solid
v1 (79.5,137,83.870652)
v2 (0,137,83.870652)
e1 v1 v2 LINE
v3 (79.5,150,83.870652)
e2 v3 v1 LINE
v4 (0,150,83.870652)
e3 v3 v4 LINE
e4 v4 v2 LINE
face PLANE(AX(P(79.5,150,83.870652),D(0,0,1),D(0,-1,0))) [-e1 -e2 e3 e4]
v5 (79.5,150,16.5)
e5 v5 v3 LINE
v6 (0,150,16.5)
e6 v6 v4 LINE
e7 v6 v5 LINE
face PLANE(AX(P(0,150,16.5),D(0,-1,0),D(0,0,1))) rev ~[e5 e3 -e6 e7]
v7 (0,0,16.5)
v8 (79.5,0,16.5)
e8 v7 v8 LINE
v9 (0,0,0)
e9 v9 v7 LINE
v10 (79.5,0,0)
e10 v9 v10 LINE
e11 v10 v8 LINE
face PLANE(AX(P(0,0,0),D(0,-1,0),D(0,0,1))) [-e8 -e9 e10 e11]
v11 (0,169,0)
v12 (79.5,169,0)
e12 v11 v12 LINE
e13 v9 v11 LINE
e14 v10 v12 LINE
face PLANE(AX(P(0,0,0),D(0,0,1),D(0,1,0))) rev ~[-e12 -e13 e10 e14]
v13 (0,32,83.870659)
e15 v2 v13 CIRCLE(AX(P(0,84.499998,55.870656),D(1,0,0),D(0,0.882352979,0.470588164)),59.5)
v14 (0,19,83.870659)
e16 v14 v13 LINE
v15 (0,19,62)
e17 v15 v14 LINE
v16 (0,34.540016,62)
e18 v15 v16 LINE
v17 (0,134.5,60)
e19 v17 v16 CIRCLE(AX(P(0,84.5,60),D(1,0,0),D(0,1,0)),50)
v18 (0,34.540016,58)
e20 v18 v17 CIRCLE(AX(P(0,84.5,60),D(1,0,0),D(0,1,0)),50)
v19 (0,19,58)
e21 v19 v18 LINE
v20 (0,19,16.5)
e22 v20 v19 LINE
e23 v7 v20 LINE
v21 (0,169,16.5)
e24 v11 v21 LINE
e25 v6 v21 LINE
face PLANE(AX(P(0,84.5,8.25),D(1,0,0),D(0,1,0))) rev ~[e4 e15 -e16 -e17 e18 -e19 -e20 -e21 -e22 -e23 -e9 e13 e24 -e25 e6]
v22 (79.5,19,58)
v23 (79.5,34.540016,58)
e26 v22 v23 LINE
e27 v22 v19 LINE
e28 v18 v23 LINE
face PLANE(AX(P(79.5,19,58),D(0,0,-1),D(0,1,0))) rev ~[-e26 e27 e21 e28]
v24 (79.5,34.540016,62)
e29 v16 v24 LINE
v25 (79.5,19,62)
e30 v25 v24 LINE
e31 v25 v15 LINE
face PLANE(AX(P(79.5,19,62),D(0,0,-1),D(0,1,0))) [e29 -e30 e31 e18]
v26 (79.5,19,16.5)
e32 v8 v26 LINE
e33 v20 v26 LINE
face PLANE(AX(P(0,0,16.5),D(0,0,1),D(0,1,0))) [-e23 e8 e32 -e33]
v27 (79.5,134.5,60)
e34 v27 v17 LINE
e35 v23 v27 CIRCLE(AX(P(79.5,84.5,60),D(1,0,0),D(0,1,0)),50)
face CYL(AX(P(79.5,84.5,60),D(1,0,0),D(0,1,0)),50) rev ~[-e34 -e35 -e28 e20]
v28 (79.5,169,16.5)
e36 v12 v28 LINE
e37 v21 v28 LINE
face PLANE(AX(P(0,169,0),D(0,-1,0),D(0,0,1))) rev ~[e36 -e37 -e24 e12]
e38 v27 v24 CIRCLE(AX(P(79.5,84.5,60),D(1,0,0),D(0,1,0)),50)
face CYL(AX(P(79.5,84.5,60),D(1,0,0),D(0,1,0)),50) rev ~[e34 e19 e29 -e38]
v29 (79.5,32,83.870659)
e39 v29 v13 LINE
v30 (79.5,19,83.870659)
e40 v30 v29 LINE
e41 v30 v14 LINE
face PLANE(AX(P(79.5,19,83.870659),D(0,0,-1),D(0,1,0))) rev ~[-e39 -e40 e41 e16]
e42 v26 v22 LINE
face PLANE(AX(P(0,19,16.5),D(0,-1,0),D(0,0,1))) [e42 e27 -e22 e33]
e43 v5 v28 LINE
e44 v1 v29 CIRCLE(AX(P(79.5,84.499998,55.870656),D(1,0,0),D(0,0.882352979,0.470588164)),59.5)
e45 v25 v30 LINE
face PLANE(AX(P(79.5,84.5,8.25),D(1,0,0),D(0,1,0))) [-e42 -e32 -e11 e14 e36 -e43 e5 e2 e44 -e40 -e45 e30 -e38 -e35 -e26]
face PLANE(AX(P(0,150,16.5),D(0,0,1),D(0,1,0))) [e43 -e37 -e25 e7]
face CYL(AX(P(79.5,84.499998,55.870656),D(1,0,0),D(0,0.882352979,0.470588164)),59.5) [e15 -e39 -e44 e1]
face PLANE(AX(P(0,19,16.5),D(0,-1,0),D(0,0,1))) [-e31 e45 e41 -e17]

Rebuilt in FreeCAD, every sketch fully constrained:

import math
import FreeCAD as App
import Part
import Sketcher
Q = App.Units.Quantity


def add_polygon(sketch, points):
    """Adds a closed chain of lines whose ends are joined by coincident constraints."""
    first, n = sketch.GeometryCount, len(points)
    for a, b in zip(points, points[1:] + points[:1]):
        sketch.addGeometry(Part.LineSegment(App.Vector(*a, 0), App.Vector(*b, 0)), False)
    for i in range(n):
        sketch.addConstraint(Sketcher.Constraint("Coincident", first + i, 2, first + (i + 1) % n, 1))

doc = App.newDocument("Part")
body = doc.addObject("PartDesign::Body", "Body")

# Sketch on YZ plane
sketch1 = body.newObject("Sketcher::SketchObject", "Sketch")
sketch1.AttachmentSupport = (doc.getObject("YZ_Plane"), [""])
sketch1.MapMode = "FlatFace"
add_polygon(sketch1, [(0, 16), (0, 0), (169, 0), (169, 16), (150, 16), (150, 166), (19, 166), (19, 16)])  # lines 0-7
sketch1.addConstraint(Sketcher.Constraint("Vertical", 0))
sketch1.addConstraint(Sketcher.Constraint("Horizontal", 1))
sketch1.addConstraint(Sketcher.Constraint("Vertical", 2))
sketch1.addConstraint(Sketcher.Constraint("Horizontal", 3))
sketch1.addConstraint(Sketcher.Constraint("Vertical", 4))
sketch1.addConstraint(Sketcher.Constraint("Horizontal", 5))
sketch1.addConstraint(Sketcher.Constraint("Vertical", 6))
sketch1.addConstraint(Sketcher.Constraint("Horizontal", 7))
sketch1.addConstraint(Sketcher.Constraint("Coincident", 0, 2, -1, 1))
sketch1.addConstraint(Sketcher.Constraint("Horizontal", 3, 2, 6, 2))
sketch1.addConstraint(Sketcher.Constraint("Equal", 3, 7))
sketch1.addConstraint(Sketcher.Constraint("DistanceX", 1, 1, 1, 2, Q("169 mm")))
sketch1.addConstraint(Sketcher.Constraint("DistanceX", 3, 2, 3, 1, Q("19 mm")))
sketch1.addConstraint(Sketcher.Constraint("DistanceY", 4, 1, 4, 2, Q("150 mm")))
sketch1.addConstraint(Sketcher.Constraint("DistanceY", 0, 2, 0, 1, Q("16.5 mm")))
pad1 = body.newObject("PartDesign::Pad", "Pad")
pad1.Profile = sketch1
pad1.Length = 79.5

# Sketch on YZ plane
sketch2 = body.newObject("Sketcher::SketchObject", "Sketch001")
sketch2.AttachmentSupport = (doc.getObject("YZ_Plane"), [""])
sketch2.MapMode = "FlatFace"
sketch2.AttachmentOffset = App.Placement(App.Vector(0, 0, 79.5), App.Rotation())
sketch2.addGeometry(Part.Circle(App.Vector(84, 60, 0), App.Vector(0, 0, 1), 50), False)
sketch2.addConstraint(Sketcher.Constraint("Diameter", 0, Q("100 mm")))
sketch2.addConstraint(Sketcher.Constraint("DistanceY", -1, 1, 0, 3, Q("60 mm")))
sketch2.addConstraint(Sketcher.Constraint("DistanceX", -1, 1, 0, 3, Q("84.5 mm")))
pocket1 = body.newObject("PartDesign::Pocket", "Pocket")
pocket1.Profile = sketch2
pocket1.Type = "ThroughAll"

# Sketch on YZ plane
sketch3 = body.newObject("Sketcher::SketchObject", "Sketch002")
sketch3.AttachmentSupport = (doc.getObject("YZ_Plane"), [""])
sketch3.MapMode = "FlatFace"
sketch3.AttachmentOffset = App.Placement(App.Vector(0, 0, 79.5), App.Rotation())
sketch3.addGeometry(Part.LineSegment(App.Vector(19, 84, 0), App.Vector(32, 84, 0)), False)
sketch3.addGeometry(Part.ArcOfCircle(Part.Circle(App.Vector(84, 56, 0), App.Vector(0, 0, 1), 59), math.radians(28), math.radians(152)), False)
sketch3.addGeometry(Part.LineSegment(App.Vector(137, 84, 0), App.Vector(150, 84, 0)), False)
sketch3.addGeometry(Part.LineSegment(App.Vector(150, 84, 0), App.Vector(184, 184, 0)), False)
sketch3.addGeometry(Part.LineSegment(App.Vector(184, 184, 0), App.Vector(-16, 180, 0)), False)
sketch3.addGeometry(Part.LineSegment(App.Vector(-16, 180, 0), App.Vector(19, 84, 0)), False)
sketch3.addConstraint(Sketcher.Constraint("Coincident", 0, 2, 1, 2))
sketch3.addConstraint(Sketcher.Constraint("Coincident", 1, 1, 2, 1))
sketch3.addConstraint(Sketcher.Constraint("Coincident", 2, 2, 3, 1))
sketch3.addConstraint(Sketcher.Constraint("Coincident", 3, 2, 4, 1))
sketch3.addConstraint(Sketcher.Constraint("Coincident", 4, 2, 5, 1))
sketch3.addConstraint(Sketcher.Constraint("Coincident", 5, 2, 0, 1))
sketch3.addConstraint(Sketcher.Constraint("Horizontal", 0))
sketch3.addConstraint(Sketcher.Constraint("Horizontal", 2))
sketch3.addConstraint(Sketcher.Constraint("Equal", 0, 2))
sketch3.addConstraint(Sketcher.Constraint("Radius", 1, Q("59.5 mm")))
sketch3.addConstraint(Sketcher.Constraint("DistanceX", 0, 1, 0, 2, Q("13 mm")))
sketch3.addConstraint(Sketcher.Constraint("DistanceX", -1, 1, 0, 2, Q("32 mm")))
sketch3.addConstraint(Sketcher.Constraint("DistanceX", -1, 1, 1, 1, Q("137 mm")))
sketch3.addConstraint(Sketcher.Constraint("DistanceX", -1, 1, 1, 3, Q("84.499998 mm")))
sketch3.addConstraint(Sketcher.Constraint("Distance", 4, Q("199.415931 mm")))
sketch3.addConstraint(Sketcher.Constraint("DistanceY", -1, 1, 0, 2, Q("83.870659 mm")))
sketch3.addConstraint(Sketcher.Constraint("DistanceX", -1, 1, 3, 2, Q("183.643631 mm")))
sketch3.addConstraint(Sketcher.Constraint("DistanceX", 4, 2, -1, 1, Q("15.737751 mm")))
sketch3.addConstraint(Sketcher.Constraint("DistanceY", -1, 1, 4, 2, Q("179.863068 mm")))
pocket2 = body.newObject("PartDesign::Pocket", "Pocket001")
pocket2.Profile = sketch3
pocket2.Type = "ThroughAll"

# Sketch on YZ plane
sketch4 = body.newObject("Sketcher::SketchObject", "Sketch003")
sketch4.AttachmentSupport = (doc.getObject("YZ_Plane"), [""])
sketch4.MapMode = "FlatFace"
sketch4.AttachmentOffset = App.Placement(App.Vector(0, 0, 79.5), App.Rotation())
add_polygon(sketch4, [(19, 62), (19, 58), (49, 58), (49, 62)])  # lines 0-3
sketch4.addConstraint(Sketcher.Constraint("Vertical", 0))
sketch4.addConstraint(Sketcher.Constraint("Horizontal", 1))
sketch4.addConstraint(Sketcher.Constraint("Vertical", 2))
sketch4.addConstraint(Sketcher.Constraint("Horizontal", 3))
sketch4.addConstraint(Sketcher.Constraint("DistanceX", 1, 1, 1, 2, Q("30 mm")))
sketch4.addConstraint(Sketcher.Constraint("DistanceY", 0, 2, 0, 1, Q("4 mm")))
sketch4.addConstraint(Sketcher.Constraint("DistanceX", -1, 1, 0, 2, Q("19 mm")))
sketch4.addConstraint(Sketcher.Constraint("DistanceY", -1, 1, 0, 2, Q("58 mm")))
pocket3 = body.newObject("PartDesign::Pocket", "Pocket002")
pocket3.Profile = sketch4
pocket3.Type = "ThroughAll"

doc.recompute()
